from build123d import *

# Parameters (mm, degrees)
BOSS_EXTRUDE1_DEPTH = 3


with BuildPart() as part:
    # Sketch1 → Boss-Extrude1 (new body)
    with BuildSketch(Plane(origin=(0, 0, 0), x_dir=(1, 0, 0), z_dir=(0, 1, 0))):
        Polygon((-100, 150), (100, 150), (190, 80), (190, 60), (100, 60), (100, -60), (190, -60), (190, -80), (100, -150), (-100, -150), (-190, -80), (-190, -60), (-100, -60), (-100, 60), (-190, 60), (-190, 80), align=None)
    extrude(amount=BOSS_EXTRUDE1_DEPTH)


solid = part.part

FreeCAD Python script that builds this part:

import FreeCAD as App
import Part
import Sketcher
from FreeCAD import Vector
Q = App.Units.Quantity

doc = App.newDocument("Part")
body = doc.addObject("PartDesign::Body", "Body")

# Sketch on XZ plane
sketch1 = doc.addObject("Sketcher::SketchObject", "Sketch")
body.addObject(sketch1)
sketch1.AttachmentSupport = (doc.XZ_Plane, [""])
sketch1.MapMode = "FlatFace"
sketch1.addGeometry([
    Part.LineSegment(Vector(100, -150, 0), Vector(-100, -150, 0)),  # 0
    Part.LineSegment(Vector(-100, -150, 0), Vector(-190, -80, 0)),  # 1
    Part.LineSegment(Vector(-190, -80, 0), Vector(-190, -60, 0)),  # 2
    Part.LineSegment(Vector(-190, -60, 0), Vector(-100, -60, 0)),  # 3
    Part.LineSegment(Vector(-100, -60, 0), Vector(-100, 60, 0)),  # 4
    Part.LineSegment(Vector(-100, 60, 0), Vector(-190, 60, 0)),  # 5
    Part.LineSegment(Vector(-190, 60, 0), Vector(-190, 80, 0)),  # 6
    Part.LineSegment(Vector(-190, 80, 0), Vector(-100, 150, 0)),  # 7
    Part.LineSegment(Vector(-100, 150, 0), Vector(100, 150, 0)),  # 8
    Part.LineSegment(Vector(100, 150, 0), Vector(190, 80, 0)),  # 9
    Part.LineSegment(Vector(190, 80, 0), Vector(190, 60, 0)),  # 10
    Part.LineSegment(Vector(190, 60, 0), Vector(100, 60, 0)),  # 11
    Part.LineSegment(Vector(100, 60, 0), Vector(100, -60, 0)),  # 12
    Part.LineSegment(Vector(100, -60, 0), Vector(190, -60, 0)),  # 13
    Part.LineSegment(Vector(190, -60, 0), Vector(190, -80, 0)),  # 14
    Part.LineSegment(Vector(190, -80, 0), Vector(100, -150, 0)),  # 15
], False)
sketch1.addConstraint([
    Sketcher.Constraint("Coincident", 0, 2, 1, 1),
    Sketcher.Constraint("Coincident", 1, 2, 2, 1),
    Sketcher.Constraint("Coincident", 2, 2, 3, 1),
    Sketcher.Constraint("Coincident", 3, 2, 4, 1),
    Sketcher.Constraint("Coincident", 4, 2, 5, 1),
    Sketcher.Constraint("Coincident", 5, 2, 6, 1),
    Sketcher.Constraint("Coincident", 6, 2, 7, 1),
    Sketcher.Constraint("Coincident", 7, 2, 8, 1),
    Sketcher.Constraint("Coincident", 8, 2, 9, 1),
    Sketcher.Constraint("Coincident", 9, 2, 10, 1),
    Sketcher.Constraint("Coincident", 10, 2, 11, 1),
    Sketcher.Constraint("Coincident", 11, 2, 12, 1),
    Sketcher.Constraint("Coincident", 12, 2, 13, 1),
    Sketcher.Constraint("Coincident", 13, 2, 14, 1),
    Sketcher.Constraint("Coincident", 14, 2, 15, 1),
    Sketcher.Constraint("Coincident", 15, 2, 0, 1),
    Sketcher.Constraint("Horizontal", 0),
    Sketcher.Constraint("Vertical", 2),
    Sketcher.Constraint("Horizontal", 3),
    Sketcher.Constraint("Vertical", 4),
    Sketcher.Constraint("Horizontal", 5),
    Sketcher.Constraint("Vertical", 6),
    Sketcher.Constraint("Horizontal", 8),
    Sketcher.Constraint("Vertical", 10),
    Sketcher.Constraint("Horizontal", 11),
    Sketcher.Constraint("Vertical", 12),
    Sketcher.Constraint("Horizontal", 13),
    Sketcher.Constraint("Vertical", 14),
    Sketcher.Constraint("Symmetric", 0, 2, 8, 2, -1, 1),
    Sketcher.Constraint("Symmetric", 1, 2, 9, 2, -1, 1),
    Sketcher.Constraint("Symmetric", 3, 2, 11, 2, -1, 1),
    Sketcher.Constraint("Symmetric", 5, 2, 13, 2, -1, 1),
    Sketcher.Constraint("Symmetric", 6, 2, 9, 2, -2),
    Sketcher.Constraint("Parallel", 7, 15),
    Sketcher.Constraint("Horizontal", 5, 2, 10, 2),
    Sketcher.Constraint("Horizontal", 1, 2, 14, 2),
    Sketcher.Constraint("Vertical", 0, 2, 3, 2),
    Sketcher.Constraint("Vertical", 4, 2, 7, 2),
    Sketcher.Constraint("DistanceX", 0, 2, 0, 1, Q("200 mm")),
    Sketcher.Constraint("DistanceX", 3, 1, 3, 2, Q("90 mm")),
    Sketcher.Constraint("DistanceY", 2, 1, 2, 2, Q("20 mm")),
    Sketcher.Constraint("DistanceY", 4, 1, 4, 2, Q("120 mm")),
    Sketcher.Constraint("DistanceY", 0, 2, -1, 1, Q("150 mm")),
])
pad1 = doc.addObject("PartDesign::Pad", "Pad")
body.addObject(pad1)
pad1.Profile = sketch1
pad1.Length = 3
pad1.Reversed = True

doc.recompute()
